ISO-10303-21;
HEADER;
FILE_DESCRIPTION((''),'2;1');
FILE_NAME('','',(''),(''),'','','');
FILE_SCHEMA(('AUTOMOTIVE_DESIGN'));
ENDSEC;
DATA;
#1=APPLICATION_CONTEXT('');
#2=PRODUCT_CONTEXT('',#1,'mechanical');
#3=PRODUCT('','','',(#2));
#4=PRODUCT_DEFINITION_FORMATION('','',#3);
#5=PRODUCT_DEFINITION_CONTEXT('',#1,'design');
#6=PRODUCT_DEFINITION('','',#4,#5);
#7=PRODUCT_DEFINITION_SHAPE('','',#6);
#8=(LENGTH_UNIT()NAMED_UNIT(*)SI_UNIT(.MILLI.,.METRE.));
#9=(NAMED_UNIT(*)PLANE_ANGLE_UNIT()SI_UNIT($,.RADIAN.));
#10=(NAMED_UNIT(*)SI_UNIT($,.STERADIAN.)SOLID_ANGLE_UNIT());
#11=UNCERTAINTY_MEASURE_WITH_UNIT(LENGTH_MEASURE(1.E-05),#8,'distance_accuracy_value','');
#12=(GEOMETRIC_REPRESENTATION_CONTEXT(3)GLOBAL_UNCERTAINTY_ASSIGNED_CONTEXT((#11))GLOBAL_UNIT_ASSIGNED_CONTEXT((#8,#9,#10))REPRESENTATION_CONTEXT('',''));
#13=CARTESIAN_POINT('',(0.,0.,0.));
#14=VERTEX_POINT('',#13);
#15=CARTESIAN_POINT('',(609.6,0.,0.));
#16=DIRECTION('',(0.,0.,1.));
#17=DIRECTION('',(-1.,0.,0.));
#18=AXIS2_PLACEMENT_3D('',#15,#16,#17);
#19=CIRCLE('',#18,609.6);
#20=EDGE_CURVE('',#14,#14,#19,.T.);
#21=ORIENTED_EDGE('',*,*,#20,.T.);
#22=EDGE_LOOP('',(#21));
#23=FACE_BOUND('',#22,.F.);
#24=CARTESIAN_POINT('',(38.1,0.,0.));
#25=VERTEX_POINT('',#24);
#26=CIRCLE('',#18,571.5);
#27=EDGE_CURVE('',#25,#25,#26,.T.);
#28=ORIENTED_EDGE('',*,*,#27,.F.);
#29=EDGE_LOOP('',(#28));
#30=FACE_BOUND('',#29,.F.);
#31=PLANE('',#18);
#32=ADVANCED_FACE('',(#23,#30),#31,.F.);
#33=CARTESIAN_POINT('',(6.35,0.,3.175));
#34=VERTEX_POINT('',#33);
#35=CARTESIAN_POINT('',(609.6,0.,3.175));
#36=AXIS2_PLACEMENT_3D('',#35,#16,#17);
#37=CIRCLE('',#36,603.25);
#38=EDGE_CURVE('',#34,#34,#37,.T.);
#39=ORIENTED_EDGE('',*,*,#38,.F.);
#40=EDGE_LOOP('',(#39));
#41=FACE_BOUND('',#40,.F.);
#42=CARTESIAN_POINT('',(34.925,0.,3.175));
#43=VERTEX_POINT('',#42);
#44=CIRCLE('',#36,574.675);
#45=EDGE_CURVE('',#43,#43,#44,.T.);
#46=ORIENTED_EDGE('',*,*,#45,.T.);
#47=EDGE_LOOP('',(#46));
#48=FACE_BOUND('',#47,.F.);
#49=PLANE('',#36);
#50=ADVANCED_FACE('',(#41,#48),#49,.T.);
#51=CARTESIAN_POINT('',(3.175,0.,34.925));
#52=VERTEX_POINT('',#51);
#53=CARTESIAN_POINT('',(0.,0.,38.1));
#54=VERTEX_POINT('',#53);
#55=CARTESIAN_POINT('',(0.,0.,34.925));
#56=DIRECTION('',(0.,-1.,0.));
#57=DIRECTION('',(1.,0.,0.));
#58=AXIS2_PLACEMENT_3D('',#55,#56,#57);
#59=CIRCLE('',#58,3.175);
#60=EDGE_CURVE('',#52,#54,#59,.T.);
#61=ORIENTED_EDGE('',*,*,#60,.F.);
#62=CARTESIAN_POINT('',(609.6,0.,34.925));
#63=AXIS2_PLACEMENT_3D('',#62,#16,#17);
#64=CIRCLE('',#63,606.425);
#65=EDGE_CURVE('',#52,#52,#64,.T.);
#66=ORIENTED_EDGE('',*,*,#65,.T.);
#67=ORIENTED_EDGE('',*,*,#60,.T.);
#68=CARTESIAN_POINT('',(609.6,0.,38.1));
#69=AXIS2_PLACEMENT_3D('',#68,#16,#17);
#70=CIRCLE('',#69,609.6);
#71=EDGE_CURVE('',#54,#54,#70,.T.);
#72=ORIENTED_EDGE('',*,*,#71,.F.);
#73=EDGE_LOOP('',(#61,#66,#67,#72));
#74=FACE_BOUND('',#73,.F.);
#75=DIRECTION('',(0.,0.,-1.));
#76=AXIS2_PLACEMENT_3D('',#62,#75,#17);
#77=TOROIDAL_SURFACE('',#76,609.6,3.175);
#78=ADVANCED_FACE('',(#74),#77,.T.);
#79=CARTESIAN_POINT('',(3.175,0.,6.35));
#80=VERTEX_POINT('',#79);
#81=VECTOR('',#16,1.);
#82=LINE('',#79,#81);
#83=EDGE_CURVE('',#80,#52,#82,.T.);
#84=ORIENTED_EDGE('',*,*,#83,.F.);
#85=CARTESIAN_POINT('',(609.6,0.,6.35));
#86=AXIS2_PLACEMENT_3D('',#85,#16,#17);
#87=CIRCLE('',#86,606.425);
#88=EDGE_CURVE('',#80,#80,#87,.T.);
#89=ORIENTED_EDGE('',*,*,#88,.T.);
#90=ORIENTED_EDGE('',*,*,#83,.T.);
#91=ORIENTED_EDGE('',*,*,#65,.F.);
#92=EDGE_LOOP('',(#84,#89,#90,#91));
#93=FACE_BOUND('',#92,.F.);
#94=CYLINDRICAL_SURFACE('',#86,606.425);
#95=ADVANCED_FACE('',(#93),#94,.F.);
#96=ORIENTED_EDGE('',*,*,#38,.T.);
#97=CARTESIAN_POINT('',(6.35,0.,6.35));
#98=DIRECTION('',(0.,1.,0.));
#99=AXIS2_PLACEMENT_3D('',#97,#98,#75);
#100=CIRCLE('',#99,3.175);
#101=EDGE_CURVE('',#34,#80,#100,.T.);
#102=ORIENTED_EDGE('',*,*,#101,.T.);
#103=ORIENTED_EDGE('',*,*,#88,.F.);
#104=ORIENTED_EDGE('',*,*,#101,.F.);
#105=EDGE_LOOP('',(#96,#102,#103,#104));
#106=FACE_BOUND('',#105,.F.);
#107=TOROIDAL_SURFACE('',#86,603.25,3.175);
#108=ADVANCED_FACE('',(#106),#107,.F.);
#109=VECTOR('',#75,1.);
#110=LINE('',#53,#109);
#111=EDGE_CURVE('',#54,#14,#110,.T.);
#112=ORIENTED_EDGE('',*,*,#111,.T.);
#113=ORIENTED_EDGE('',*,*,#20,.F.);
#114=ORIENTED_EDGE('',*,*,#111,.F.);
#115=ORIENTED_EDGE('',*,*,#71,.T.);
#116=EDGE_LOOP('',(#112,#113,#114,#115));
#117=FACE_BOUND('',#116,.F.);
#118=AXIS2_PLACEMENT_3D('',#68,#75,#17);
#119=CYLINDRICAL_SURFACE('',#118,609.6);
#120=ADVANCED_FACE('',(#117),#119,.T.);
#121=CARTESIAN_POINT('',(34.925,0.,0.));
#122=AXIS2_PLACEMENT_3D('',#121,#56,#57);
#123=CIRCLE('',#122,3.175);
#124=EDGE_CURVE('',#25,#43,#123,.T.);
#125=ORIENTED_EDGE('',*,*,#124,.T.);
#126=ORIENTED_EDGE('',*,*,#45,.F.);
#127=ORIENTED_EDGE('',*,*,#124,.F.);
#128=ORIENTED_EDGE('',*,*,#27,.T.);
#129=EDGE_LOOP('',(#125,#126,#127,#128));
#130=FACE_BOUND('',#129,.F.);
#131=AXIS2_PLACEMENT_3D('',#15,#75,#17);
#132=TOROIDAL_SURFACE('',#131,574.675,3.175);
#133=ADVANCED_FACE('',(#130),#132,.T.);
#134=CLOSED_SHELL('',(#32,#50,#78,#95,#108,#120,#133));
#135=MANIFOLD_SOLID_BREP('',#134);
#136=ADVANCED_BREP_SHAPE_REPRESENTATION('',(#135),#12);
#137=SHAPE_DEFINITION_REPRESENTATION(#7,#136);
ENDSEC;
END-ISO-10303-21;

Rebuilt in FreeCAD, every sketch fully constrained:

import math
import FreeCAD as App
import Part
import Sketcher

V = App.Vector
Q = App.Units.Quantity

doc = App.newDocument("Part")
body = doc.addObject("PartDesign::Body", "Body")

# Sketch on XZ plane
sketch1 = body.newObject("Sketcher::SketchObject", "Sketch")
sketch1.AttachmentSupport = (doc.getObject("XZ_Plane"), [""])
sketch1.MapMode = "FlatFace"
sketch1.addGeometry(Part.ArcOfCircle(Part.Circle(V(0, 34.9, 0), V(0, 0, 1), 3.2), math.radians(0), math.radians(90)), False)
sketch1.addGeometry(Part.LineSegment(V(0, 38.1, 0), V(0, 0, 0)), False)
sketch1.addGeometry(Part.LineSegment(V(0, 0, 0), V(38.1, 0, 0)), False)
sketch1.addGeometry(Part.ArcOfCircle(Part.Circle(V(34.9, 0, 0), V(0, 0, 1), 3.2), math.radians(0), math.radians(90)), False)
sketch1.addGeometry(Part.LineSegment(V(34.9, 3.2, 0), V(6.3, 3.2, 0)), False)
sketch1.addGeometry(Part.ArcOfCircle(Part.Circle(V(6.3, 6.3, 0), V(0, 0, 1), 3.2), math.radians(180), math.radians(270)), False)
sketch1.addGeometry(Part.LineSegment(V(3.2, 6.3, 0), V(3.2, 34.9, 0)), False)
sketch1.addGeometry(Part.LineSegment(V(609.6, 0, 0), V(609.6, 38.1, 0)), True)  # axis
sketch1.addConstraint(Sketcher.Constraint("Coincident", 0, 2, 1, 1))
sketch1.addConstraint(Sketcher.Constraint("Coincident", 1, 2, 2, 1))
sketch1.addConstraint(Sketcher.Constraint("Coincident", 2, 2, 3, 1))
sketch1.addConstraint(Sketcher.Constraint("Tangent", 3, 2, 4, 1))
sketch1.addConstraint(Sketcher.Constraint("Tangent", 4, 2, 5, 2))
sketch1.addConstraint(Sketcher.Constraint("Tangent", 5, 1, 6, 1))
sketch1.addConstraint(Sketcher.Constraint("Tangent", 6, 2, 0, 1))
sketch1.addConstraint(Sketcher.Constraint("Vertical", 1))
sketch1.addConstraint(Sketcher.Constraint("Horizontal", 2))
sketch1.addConstraint(Sketcher.Constraint("Horizontal", 4))
sketch1.addConstraint(Sketcher.Constraint("Vertical", 6))
sketch1.addConstraint(Sketcher.Constraint("Vertical", 7))
sketch1.addConstraint(Sketcher.Constraint("Coincident", 1, 2, -1, 1))
sketch1.addConstraint(Sketcher.Constraint("Equal", 0, 3))
sketch1.addConstraint(Sketcher.Constraint("Equal", 3, 5))
sketch1.addConstraint(Sketcher.Constraint("PointOnObject", 0, 3, -2))
sketch1.addConstraint(Sketcher.Constraint("PointOnObject", 3, 3, -1))
sketch1.addConstraint(Sketcher.Constraint("PointOnObject", 7, 1, -1))
sketch1.addConstraint(Sketcher.Constraint("Horizontal", 0, 2, 7, 2))
sketch1.addConstraint(Sketcher.Constraint("Equal", 2, 1))
sketch1.addConstraint(Sketcher.Constraint("DistanceX", 2, 1, 2, 2, Q("1.5 in")))
sketch1.addConstraint(Sketcher.Constraint("DistanceX", -1, 1, 7, 1, Q("24 in")))
sketch1.addConstraint(Sketcher.Constraint("Radius", 0, Q("0.125 in")))
revolution = body.newObject("PartDesign::Revolution", "Revolution")
revolution.Profile = sketch1
revolution.ReferenceAxis = (sketch1, ["Axis0"])
revolution.Angle = 360

doc.recompute()
